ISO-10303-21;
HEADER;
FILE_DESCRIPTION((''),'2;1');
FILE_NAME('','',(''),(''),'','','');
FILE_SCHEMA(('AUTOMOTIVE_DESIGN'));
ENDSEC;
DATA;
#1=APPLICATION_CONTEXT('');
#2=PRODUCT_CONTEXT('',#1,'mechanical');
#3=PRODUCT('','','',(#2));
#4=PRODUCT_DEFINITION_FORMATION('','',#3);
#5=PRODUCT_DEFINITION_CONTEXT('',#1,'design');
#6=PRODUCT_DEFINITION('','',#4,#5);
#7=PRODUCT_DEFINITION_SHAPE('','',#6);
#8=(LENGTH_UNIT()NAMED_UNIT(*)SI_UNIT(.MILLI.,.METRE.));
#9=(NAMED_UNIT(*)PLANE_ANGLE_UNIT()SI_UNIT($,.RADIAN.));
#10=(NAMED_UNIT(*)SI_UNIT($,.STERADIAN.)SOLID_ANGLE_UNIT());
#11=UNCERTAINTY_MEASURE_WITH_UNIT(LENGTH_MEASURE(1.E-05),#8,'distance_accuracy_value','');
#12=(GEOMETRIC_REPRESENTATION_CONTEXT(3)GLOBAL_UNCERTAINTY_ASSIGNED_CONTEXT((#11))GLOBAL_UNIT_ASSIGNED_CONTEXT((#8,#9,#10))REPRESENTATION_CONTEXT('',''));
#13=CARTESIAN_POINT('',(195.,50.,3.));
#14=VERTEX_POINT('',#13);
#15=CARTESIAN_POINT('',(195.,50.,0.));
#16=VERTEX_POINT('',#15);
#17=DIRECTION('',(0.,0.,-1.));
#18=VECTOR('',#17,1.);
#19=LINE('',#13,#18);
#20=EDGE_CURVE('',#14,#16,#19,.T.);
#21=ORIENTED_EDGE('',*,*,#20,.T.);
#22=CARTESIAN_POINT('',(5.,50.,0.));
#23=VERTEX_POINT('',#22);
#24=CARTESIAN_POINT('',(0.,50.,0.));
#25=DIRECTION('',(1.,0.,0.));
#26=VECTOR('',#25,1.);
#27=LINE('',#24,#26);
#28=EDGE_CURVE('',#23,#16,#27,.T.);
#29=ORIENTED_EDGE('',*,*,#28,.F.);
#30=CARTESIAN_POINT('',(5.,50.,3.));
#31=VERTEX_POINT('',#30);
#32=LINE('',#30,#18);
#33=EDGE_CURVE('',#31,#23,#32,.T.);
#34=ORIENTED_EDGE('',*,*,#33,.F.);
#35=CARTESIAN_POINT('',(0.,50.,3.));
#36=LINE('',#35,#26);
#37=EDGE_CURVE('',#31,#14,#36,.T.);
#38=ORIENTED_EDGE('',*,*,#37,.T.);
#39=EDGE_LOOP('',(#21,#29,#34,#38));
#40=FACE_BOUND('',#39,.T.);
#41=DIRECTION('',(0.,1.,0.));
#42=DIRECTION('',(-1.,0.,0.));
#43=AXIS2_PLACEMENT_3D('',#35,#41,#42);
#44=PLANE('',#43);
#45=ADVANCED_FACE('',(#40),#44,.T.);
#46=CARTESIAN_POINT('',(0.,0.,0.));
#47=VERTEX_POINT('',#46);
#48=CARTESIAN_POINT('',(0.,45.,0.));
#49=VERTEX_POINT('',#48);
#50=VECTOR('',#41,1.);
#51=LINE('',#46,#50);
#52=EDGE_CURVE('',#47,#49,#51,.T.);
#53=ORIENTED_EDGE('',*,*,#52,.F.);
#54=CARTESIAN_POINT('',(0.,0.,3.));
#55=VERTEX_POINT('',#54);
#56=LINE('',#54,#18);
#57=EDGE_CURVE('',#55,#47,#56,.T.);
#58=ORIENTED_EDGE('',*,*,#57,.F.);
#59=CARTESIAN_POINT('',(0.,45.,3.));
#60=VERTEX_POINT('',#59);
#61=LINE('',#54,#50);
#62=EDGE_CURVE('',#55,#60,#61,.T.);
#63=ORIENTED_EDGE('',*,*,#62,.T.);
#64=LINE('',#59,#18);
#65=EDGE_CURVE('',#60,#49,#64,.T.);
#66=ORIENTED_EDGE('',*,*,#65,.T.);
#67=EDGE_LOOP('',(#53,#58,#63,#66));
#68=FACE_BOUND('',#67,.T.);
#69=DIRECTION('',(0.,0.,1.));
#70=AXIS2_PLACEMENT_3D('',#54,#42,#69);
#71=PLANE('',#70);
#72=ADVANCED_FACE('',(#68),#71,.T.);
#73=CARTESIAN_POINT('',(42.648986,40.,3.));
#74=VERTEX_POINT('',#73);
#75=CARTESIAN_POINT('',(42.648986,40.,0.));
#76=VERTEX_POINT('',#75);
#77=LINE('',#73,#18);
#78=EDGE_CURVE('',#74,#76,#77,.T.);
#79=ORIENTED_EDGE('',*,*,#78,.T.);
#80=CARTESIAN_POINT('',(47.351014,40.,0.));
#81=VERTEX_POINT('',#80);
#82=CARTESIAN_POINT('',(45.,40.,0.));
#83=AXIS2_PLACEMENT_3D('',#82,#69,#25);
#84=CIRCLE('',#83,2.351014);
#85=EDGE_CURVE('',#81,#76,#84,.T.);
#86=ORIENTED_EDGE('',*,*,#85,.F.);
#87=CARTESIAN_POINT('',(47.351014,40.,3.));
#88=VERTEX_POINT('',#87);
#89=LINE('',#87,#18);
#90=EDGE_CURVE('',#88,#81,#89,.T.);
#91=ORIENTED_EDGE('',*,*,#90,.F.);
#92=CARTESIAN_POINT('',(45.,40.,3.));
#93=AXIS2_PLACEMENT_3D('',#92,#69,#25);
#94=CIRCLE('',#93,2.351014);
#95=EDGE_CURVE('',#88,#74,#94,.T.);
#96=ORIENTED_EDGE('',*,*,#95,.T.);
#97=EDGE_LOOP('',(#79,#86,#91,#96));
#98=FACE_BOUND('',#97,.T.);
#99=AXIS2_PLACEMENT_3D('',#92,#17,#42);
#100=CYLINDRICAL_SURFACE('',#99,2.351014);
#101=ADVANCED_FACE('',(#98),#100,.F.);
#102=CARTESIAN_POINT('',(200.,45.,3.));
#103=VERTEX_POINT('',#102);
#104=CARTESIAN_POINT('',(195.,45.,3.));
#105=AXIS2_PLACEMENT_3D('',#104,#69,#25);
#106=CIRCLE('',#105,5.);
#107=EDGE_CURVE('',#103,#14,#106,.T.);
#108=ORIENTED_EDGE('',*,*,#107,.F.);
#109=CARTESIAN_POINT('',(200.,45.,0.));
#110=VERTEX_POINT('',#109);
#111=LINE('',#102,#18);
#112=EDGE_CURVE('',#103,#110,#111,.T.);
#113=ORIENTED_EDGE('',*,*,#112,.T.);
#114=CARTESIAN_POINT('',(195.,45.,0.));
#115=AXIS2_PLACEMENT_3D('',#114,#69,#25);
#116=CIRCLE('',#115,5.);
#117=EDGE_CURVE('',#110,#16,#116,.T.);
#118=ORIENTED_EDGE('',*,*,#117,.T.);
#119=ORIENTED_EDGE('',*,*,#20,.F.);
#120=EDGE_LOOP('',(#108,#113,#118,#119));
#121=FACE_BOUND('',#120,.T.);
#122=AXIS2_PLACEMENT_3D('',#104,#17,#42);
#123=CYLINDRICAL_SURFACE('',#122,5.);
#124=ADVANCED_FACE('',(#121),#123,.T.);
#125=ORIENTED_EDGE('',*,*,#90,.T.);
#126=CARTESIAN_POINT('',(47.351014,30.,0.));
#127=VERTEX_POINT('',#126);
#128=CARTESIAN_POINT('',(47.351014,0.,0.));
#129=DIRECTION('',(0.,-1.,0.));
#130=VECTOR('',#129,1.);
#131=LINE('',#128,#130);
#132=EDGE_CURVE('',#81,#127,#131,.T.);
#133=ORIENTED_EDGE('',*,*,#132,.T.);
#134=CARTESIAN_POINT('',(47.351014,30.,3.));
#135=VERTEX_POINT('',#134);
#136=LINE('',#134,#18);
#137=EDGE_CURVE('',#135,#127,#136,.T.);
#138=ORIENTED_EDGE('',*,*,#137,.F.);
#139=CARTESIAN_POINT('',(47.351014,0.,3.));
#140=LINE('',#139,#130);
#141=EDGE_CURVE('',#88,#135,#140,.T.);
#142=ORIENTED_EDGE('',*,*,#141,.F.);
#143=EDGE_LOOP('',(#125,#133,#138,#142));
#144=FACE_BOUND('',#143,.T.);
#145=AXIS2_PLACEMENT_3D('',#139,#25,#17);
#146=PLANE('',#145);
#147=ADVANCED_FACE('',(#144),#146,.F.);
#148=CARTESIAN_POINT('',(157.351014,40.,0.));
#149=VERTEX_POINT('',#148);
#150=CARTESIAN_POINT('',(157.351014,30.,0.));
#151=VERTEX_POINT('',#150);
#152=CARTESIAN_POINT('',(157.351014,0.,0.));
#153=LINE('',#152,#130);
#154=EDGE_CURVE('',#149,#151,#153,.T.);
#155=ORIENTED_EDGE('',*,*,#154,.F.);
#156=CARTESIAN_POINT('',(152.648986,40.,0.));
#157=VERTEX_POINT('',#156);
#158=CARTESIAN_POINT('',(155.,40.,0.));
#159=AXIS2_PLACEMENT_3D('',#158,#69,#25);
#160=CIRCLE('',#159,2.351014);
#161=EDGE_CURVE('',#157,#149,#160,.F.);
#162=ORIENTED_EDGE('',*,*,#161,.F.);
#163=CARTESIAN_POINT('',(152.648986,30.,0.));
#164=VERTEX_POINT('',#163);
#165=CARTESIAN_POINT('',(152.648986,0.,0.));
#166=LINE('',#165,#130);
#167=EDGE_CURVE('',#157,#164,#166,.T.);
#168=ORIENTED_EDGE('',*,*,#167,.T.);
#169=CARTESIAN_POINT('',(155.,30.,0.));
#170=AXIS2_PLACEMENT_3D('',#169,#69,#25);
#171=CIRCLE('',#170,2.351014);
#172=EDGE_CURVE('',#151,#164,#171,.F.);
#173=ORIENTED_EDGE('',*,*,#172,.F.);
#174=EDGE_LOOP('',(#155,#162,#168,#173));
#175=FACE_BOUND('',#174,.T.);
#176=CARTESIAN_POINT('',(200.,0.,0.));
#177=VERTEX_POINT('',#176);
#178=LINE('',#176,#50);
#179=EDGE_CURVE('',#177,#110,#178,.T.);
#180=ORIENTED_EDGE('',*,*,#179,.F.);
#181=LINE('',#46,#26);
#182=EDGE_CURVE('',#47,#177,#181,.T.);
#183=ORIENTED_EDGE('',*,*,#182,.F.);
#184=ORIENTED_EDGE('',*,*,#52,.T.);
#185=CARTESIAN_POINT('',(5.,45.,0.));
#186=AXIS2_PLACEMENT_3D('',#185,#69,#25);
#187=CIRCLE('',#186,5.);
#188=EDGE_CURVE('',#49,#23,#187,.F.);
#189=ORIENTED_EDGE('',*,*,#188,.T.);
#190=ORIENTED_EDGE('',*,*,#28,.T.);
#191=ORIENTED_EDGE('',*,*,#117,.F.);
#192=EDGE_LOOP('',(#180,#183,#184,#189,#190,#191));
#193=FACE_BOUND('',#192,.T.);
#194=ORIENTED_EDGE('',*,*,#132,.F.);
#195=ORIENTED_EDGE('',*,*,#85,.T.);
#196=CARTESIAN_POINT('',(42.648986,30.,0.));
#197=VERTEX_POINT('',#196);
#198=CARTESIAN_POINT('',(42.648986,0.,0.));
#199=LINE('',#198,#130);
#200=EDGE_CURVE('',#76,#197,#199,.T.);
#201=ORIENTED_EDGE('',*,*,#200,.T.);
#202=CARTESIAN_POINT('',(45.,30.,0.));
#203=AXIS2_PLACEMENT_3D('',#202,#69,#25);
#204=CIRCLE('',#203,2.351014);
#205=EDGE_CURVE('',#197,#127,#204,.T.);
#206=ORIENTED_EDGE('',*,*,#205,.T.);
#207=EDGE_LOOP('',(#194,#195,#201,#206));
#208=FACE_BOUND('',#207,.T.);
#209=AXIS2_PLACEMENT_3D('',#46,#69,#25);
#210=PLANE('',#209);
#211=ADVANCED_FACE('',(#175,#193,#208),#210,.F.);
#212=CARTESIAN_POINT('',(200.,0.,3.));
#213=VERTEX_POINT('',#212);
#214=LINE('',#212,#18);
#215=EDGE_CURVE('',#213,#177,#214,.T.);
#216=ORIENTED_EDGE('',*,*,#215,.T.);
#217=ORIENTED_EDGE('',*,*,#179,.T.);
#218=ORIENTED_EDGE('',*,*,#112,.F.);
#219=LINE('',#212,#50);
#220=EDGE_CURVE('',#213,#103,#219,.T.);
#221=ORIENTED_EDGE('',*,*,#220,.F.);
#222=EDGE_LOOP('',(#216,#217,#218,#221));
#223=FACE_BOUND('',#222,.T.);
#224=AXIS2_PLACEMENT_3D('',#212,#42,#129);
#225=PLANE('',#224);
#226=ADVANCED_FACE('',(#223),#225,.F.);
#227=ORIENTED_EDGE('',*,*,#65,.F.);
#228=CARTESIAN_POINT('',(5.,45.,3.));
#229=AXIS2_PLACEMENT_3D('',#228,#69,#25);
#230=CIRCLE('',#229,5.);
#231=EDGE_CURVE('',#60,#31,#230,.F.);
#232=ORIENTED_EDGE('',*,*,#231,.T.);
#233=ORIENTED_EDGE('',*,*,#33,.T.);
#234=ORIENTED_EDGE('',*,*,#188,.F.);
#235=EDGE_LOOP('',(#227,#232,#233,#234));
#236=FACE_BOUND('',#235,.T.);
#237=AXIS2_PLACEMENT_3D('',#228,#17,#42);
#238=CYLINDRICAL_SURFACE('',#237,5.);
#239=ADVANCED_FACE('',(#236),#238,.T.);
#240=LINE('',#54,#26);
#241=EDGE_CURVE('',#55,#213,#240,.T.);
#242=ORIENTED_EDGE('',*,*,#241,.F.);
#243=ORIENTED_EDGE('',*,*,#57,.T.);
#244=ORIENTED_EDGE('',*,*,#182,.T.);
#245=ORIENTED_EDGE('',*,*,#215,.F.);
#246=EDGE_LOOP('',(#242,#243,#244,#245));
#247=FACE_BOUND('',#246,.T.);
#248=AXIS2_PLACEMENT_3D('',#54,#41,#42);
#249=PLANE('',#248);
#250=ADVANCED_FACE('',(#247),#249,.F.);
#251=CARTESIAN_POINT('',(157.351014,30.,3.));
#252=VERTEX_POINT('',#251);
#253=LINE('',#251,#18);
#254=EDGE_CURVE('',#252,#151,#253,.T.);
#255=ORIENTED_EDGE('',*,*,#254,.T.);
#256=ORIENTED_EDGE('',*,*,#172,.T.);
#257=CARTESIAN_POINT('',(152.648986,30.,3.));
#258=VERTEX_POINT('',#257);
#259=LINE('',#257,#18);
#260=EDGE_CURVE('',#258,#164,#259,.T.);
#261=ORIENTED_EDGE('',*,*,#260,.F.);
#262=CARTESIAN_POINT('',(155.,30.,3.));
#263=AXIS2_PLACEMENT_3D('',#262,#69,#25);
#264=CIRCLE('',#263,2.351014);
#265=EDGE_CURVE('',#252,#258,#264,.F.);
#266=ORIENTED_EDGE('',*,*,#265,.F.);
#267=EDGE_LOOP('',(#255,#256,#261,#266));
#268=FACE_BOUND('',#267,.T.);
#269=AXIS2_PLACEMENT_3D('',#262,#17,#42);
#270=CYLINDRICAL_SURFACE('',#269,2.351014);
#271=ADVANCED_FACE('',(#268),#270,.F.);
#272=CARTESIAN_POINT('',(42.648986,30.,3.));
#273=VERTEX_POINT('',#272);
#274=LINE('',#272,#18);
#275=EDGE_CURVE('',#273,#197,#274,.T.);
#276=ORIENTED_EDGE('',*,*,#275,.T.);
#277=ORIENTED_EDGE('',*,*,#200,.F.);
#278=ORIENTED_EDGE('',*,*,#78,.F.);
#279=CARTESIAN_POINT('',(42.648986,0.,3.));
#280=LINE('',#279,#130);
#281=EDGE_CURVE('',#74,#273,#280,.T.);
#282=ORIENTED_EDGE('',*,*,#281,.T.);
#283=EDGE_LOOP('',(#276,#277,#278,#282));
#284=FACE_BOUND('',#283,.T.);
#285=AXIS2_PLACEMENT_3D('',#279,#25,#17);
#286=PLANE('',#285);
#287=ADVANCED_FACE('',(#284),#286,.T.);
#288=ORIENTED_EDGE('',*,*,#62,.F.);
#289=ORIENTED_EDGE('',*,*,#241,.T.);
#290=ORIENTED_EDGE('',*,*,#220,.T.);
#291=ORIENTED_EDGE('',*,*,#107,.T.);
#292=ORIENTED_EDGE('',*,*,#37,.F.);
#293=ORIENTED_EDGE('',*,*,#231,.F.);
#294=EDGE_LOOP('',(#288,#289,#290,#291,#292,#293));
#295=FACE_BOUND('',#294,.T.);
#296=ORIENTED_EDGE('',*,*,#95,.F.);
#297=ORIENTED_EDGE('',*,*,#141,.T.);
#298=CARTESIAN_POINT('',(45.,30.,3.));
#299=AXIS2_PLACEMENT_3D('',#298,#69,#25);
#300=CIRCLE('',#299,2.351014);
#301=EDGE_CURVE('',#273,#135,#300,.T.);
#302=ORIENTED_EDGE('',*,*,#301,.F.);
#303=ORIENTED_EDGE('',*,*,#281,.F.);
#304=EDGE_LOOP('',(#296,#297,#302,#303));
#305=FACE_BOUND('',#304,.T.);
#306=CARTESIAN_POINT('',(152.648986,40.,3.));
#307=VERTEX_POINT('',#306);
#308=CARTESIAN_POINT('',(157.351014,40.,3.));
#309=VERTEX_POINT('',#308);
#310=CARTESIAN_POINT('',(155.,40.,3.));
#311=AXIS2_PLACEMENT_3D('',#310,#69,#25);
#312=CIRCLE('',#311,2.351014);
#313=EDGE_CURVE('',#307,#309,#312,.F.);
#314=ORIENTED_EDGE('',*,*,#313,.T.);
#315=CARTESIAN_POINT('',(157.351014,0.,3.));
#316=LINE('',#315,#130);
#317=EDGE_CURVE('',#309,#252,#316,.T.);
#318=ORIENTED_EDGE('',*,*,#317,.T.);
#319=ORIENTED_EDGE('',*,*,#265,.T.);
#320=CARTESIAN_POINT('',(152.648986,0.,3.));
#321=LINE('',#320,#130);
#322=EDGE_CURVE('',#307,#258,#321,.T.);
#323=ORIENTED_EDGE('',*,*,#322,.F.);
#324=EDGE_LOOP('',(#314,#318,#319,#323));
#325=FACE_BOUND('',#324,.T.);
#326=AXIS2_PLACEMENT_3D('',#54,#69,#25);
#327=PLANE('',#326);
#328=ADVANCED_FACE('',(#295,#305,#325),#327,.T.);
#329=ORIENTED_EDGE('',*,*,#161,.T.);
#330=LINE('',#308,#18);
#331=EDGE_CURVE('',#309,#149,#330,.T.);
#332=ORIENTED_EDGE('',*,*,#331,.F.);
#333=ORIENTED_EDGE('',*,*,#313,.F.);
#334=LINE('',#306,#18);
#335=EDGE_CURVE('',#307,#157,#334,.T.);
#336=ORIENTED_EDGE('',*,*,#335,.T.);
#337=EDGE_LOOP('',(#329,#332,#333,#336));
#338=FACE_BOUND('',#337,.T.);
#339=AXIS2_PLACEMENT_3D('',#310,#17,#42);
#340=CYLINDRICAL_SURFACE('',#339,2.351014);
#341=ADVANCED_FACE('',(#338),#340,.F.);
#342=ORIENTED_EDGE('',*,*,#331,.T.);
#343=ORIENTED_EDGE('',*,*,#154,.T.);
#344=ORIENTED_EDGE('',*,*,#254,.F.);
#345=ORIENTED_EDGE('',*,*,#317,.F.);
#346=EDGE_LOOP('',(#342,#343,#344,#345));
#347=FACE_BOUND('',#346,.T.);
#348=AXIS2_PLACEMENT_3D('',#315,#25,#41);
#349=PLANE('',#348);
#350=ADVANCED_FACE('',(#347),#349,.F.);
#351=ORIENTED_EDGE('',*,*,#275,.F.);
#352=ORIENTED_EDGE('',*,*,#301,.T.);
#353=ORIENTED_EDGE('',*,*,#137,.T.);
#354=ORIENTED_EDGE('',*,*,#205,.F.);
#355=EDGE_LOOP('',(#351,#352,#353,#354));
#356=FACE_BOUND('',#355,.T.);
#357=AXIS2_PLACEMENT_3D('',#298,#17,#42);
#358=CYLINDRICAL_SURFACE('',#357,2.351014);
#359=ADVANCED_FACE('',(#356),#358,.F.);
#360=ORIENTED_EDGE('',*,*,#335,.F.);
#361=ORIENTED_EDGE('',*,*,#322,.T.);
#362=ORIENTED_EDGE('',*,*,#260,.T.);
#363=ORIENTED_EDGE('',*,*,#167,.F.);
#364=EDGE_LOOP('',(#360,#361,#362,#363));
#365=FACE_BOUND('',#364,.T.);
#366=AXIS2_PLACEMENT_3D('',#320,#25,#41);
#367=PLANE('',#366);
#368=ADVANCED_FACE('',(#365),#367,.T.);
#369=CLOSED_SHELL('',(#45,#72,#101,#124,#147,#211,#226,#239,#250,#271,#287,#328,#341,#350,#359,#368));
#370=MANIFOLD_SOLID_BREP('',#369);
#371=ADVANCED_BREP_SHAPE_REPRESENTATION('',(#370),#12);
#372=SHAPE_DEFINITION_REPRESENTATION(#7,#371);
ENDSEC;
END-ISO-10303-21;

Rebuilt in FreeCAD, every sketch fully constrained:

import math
import FreeCAD as App
import Part
import Sketcher
from FreeCAD import Vector
Q = App.Units.Quantity

doc = App.newDocument("Part")
body = doc.addObject("PartDesign::Body", "Body")

# Sketch on XY plane
sketch1 = doc.addObject("Sketcher::SketchObject", "Sketch")
body.addObject(sketch1)
sketch1.AttachmentSupport = (doc.XY_Plane, [""])
sketch1.MapMode = "FlatFace"
sketch1.addGeometry(Part.LineSegment(Vector(0, 0, 0), Vector(200, 0, 0)), False)
sketch1.addGeometry(Part.LineSegment(Vector(200, 0, 0), Vector(200, 45, 0)), False)
sketch1.addGeometry(Part.ArcOfCircle(Part.Circle(Vector(195, 45, 0), Vector(0, 0, 1), 5), math.radians(0), math.radians(90)), False)
sketch1.addGeometry(Part.LineSegment(Vector(195, 50, 0), Vector(5, 50, 0)), False)
sketch1.addGeometry(Part.ArcOfCircle(Part.Circle(Vector(5, 45, 0), Vector(0, 0, 1), 5), math.radians(90), math.radians(180)), False)
sketch1.addGeometry(Part.LineSegment(Vector(0, 45, 0), Vector(0, 0, 0)), False)
sketch1.addGeometry(Part.LineSegment(Vector(42.648986, 30, 0), Vector(42.648986, 40, 0)), False)
sketch1.addGeometry(Part.ArcOfCircle(Part.Circle(Vector(45, 40, 0), Vector(0, 0, 1), 2.351014), math.radians(0), math.radians(180)), False)
sketch1.addGeometry(Part.LineSegment(Vector(47.351014, 40, 0), Vector(47.351014, 30, 0)), False)
sketch1.addGeometry(Part.ArcOfCircle(Part.Circle(Vector(45, 30, 0), Vector(0, 0, 1), 2.351014), math.radians(180), math.radians(360)), False)
sketch1.addGeometry(Part.LineSegment(Vector(152.648986, 30, 0), Vector(152.648986, 40, 0)), False)
sketch1.addGeometry(Part.ArcOfCircle(Part.Circle(Vector(155, 40, 0), Vector(0, 0, 1), 2.351014), math.radians(0), math.radians(180)), False)
sketch1.addGeometry(Part.LineSegment(Vector(157.351014, 40, 0), Vector(157.351014, 30, 0)), False)
sketch1.addGeometry(Part.ArcOfCircle(Part.Circle(Vector(155, 30, 0), Vector(0, 0, 1), 2.351014), math.radians(180), math.radians(360)), False)
sketch1.addConstraint(Sketcher.Constraint("Coincident", 0, 2, 1, 1))
sketch1.addConstraint(Sketcher.Constraint("Tangent", 1, 2, 2, 1))
sketch1.addConstraint(Sketcher.Constraint("Tangent", 2, 2, 3, 1))
sketch1.addConstraint(Sketcher.Constraint("Tangent", 3, 2, 4, 1))
sketch1.addConstraint(Sketcher.Constraint("Tangent", 4, 2, 5, 1))
sketch1.addConstraint(Sketcher.Constraint("Coincident", 5, 2, 0, 1))
sketch1.addConstraint(Sketcher.Constraint("Tangent", 6, 2, 7, 2))
sketch1.addConstraint(Sketcher.Constraint("Tangent", 7, 1, 8, 1))
sketch1.addConstraint(Sketcher.Constraint("Tangent", 8, 2, 9, 2))
sketch1.addConstraint(Sketcher.Constraint("Tangent", 9, 1, 6, 1))
sketch1.addConstraint(Sketcher.Constraint("Tangent", 10, 2, 11, 2))
sketch1.addConstraint(Sketcher.Constraint("Tangent", 11, 1, 12, 1))
sketch1.addConstraint(Sketcher.Constraint("Tangent", 12, 2, 13, 2))
sketch1.addConstraint(Sketcher.Constraint("Tangent", 13, 1, 10, 1))
sketch1.addConstraint(Sketcher.Constraint("Horizontal", 0))
sketch1.addConstraint(Sketcher.Constraint("Vertical", 1))
sketch1.addConstraint(Sketcher.Constraint("Horizontal", 3))
sketch1.addConstraint(Sketcher.Constraint("Vertical", 5))
sketch1.addConstraint(Sketcher.Constraint("Vertical", 6))
sketch1.addConstraint(Sketcher.Constraint("Vertical", 8))
sketch1.addConstraint(Sketcher.Constraint("Vertical", 10))
sketch1.addConstraint(Sketcher.Constraint("Vertical", 12))
sketch1.addConstraint(Sketcher.Constraint("Coincident", 5, 2, -1, 1))
sketch1.addConstraint(Sketcher.Constraint("Equal", 2, 4))
sketch1.addConstraint(Sketcher.Constraint("Equal", 9, 11))
sketch1.addConstraint(Sketcher.Constraint("Horizontal", 7, 3, 11, 3))
sketch1.addConstraint(Sketcher.Constraint("Horizontal", 9, 3, 13, 3))
sketch1.addConstraint(Sketcher.Constraint("Radius", 2, Q("5 mm")))
sketch1.addConstraint(Sketcher.Constraint("DistanceX", 0, 1, 0, 2, Q("200 mm")))
sketch1.addConstraint(Sketcher.Constraint("DistanceY", 1, 1, 1, 2, Q("45 mm")))
sketch1.addConstraint(Sketcher.Constraint("DistanceY", 6, 1, 6, 2, Q("10 mm")))
sketch1.addConstraint(Sketcher.Constraint("DistanceX", -1, 1, 7, 3, Q("45 mm")))
sketch1.addConstraint(Sketcher.Constraint("DistanceY", -1, 1, 7, 3, Q("40 mm")))
sketch1.addConstraint(Sketcher.Constraint("DistanceX", -1, 1, 11, 3, Q("155 mm")))
sketch1.addConstraint(Sketcher.Constraint("Radius", 7, Q("2.351014 mm")))
pad1 = doc.addObject("PartDesign::Pad", "Pad")
body.addObject(pad1)
pad1.Profile = sketch1
pad1.Length = 3

doc.recompute()
